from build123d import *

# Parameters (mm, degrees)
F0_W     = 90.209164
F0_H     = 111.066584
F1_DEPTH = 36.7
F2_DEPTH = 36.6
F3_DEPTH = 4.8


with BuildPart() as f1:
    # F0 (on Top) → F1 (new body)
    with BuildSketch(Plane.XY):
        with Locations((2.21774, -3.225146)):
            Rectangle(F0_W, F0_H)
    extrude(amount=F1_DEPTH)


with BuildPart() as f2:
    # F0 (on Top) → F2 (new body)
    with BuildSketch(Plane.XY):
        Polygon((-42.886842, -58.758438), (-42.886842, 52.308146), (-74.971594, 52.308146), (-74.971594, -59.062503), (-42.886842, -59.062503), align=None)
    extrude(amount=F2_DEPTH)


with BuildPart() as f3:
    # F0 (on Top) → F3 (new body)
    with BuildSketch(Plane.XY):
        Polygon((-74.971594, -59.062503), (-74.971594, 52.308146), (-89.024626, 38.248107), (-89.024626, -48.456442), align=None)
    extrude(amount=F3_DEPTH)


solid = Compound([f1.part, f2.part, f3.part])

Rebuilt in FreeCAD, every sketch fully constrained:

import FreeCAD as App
import Part
import Sketcher

V = App.Vector


def add_polygon(sketch, points):
    """Adds a closed chain of lines whose ends are joined by coincident constraints."""
    first, n = sketch.GeometryCount, len(points)
    for a, b in zip(points, points[1:] + points[:1]):
        sketch.addGeometry(Part.LineSegment(App.Vector(*a, 0), App.Vector(*b, 0)), False)
    for i in range(n):
        sketch.addConstraint(Sketcher.Constraint("Coincident", first + i, 2, first + (i + 1) % n, 1))

doc = App.newDocument("Part")
body = doc.addObject("PartDesign::Body", "Body")

# Sketch on XY plane
sketch1 = doc.addObject("Sketcher::SketchObject", "Sketch")
body.addObject(sketch1)
sketch1.AttachmentSupport = (doc.XY_Plane, [""])
sketch1.MapMode = "FlatFace"
add_polygon(sketch1, [(-43, 52), (-43, -59), (47, -59), (47, 52)])  # lines 0-3
sketch1.addConstraint([
    Sketcher.Constraint("Vertical", 0),
    Sketcher.Constraint("Horizontal", 1),
    Sketcher.Constraint("Vertical", 2),
    Sketcher.Constraint("Horizontal", 3),
    Sketcher.Constraint("DistanceX", 1, 1, 1, 2, 90.209164),
    Sketcher.Constraint("DistanceY", 0, 2, 0, 1, 111.066584),
    Sketcher.Constraint("DistanceX", 0, 2, -1, 1, 42.886842),
    Sketcher.Constraint("DistanceY", 0, 2, -1, 1, 58.758438),
])
pad1 = doc.addObject("PartDesign::Pad", "Pad")
body.addObject(pad1)
pad1.Profile = sketch1
pad1.Length = 36.7
body2 = doc.addObject("PartDesign::Body", "Body001")

# Sketch on XY plane
sketch2 = doc.addObject("Sketcher::SketchObject", "Sketch001")
body2.addObject(sketch2)
sketch2.AttachmentSupport = (doc.getObject("XY_Plane001"), [""])
sketch2.MapMode = "FlatFace"
add_polygon(sketch2, [(-43, 52), (-75, 52), (-75, -59), (-43, -59)])  # lines 0-3
sketch2.addConstraint([
    Sketcher.Constraint("Horizontal", 0),
    Sketcher.Constraint("Vertical", 1),
    Sketcher.Constraint("Horizontal", 2),
    Sketcher.Constraint("Vertical", 3),
    Sketcher.Constraint("DistanceX", 0, 2, 0, 1, 32.084752),
    Sketcher.Constraint("DistanceY", 1, 2, 1, 1, 111.370649),
    Sketcher.Constraint("DistanceX", 0, 2, -1, 1, 74.971594),
    Sketcher.Constraint("DistanceY", -1, 1, 0, 2, 52.308146),
])
pad2 = doc.addObject("PartDesign::Pad", "Pad001")
body2.addObject(pad2)
pad2.Profile = sketch2
pad2.Length = 36.6
body3 = doc.addObject("PartDesign::Body", "Body002")

# Sketch on XY plane
sketch3 = doc.addObject("Sketcher::SketchObject", "Sketch002")
body3.addObject(sketch3)
sketch3.AttachmentSupport = (doc.getObject("XY_Plane002"), [""])
sketch3.MapMode = "FlatFace"
add_polygon(sketch3, [(-75, -59), (-75, 52), (-89, 38), (-89, -48)])  # lines 0-3
sketch3.addConstraint([
    Sketcher.Constraint("Vertical", 0),
    Sketcher.Constraint("Vertical", 2),
    Sketcher.Constraint("DistanceY", 0, 1, 0, 2, 111.370649),
    Sketcher.Constraint("DistanceY", 2, 2, 2, 1, 86.704549),
    Sketcher.Constraint("DistanceY", 1, 2, 0, 2, 14.060039),
    Sketcher.Constraint("Distance", 1, 19.878944),
    Sketcher.Constraint("DistanceX", 0, 2, -1, 1, 74.971594),
    Sketcher.Constraint("DistanceY", -1, 1, 0, 2, 52.308146),
])
pad3 = doc.addObject("PartDesign::Pad", "Pad002")
body3.addObject(pad3)
pad3.Profile = sketch3
pad3.Length = 4.8

doc.recompute()
